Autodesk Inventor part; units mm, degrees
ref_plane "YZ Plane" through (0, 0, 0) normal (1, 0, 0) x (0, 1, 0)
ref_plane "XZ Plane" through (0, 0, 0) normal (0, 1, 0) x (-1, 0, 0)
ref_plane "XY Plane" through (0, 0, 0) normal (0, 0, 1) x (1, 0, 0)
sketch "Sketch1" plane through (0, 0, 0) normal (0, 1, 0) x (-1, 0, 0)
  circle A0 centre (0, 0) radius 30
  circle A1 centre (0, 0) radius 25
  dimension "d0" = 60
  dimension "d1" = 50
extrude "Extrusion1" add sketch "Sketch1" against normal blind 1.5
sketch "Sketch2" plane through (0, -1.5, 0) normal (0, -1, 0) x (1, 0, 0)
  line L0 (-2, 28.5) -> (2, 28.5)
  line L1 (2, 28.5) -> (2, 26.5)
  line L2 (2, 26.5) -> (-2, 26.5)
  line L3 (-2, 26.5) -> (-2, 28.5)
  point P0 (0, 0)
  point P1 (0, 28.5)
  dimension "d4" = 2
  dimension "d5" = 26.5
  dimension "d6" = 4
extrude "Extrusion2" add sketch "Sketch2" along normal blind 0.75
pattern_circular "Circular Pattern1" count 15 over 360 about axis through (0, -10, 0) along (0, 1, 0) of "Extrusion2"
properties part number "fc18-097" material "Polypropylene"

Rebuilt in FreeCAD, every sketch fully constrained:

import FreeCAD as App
import Part
import Sketcher


def add_polygon(sketch, points):
    """Adds a closed chain of lines whose ends are joined by coincident constraints."""
    first, n = sketch.GeometryCount, len(points)
    for a, b in zip(points, points[1:] + points[:1]):
        sketch.addGeometry(Part.LineSegment(App.Vector(*a, 0), App.Vector(*b, 0)), False)
    for i in range(n):
        sketch.addConstraint(Sketcher.Constraint("Coincident", first + i, 2, first + (i + 1) % n, 1))

doc = App.newDocument("Part")
body = doc.addObject("PartDesign::Body", "Body")

sketch1 = doc.addObject("Sketcher::SketchObject", "Sketch")
body.addObject(sketch1)
sketch1.AttachmentSupport = (doc.XZ_Plane, [""])
sketch1.MapMode = "FlatFace"
sketch1.addGeometry([
    Part.Circle(App.Vector(0, 0, 0), App.Vector(0, 0, 1), 30),
    Part.Circle(App.Vector(0, 0, 0), App.Vector(0, 0, 1), 25),
], False)
sketch1.addConstraint([
    Sketcher.Constraint("Coincident", 0, 3, -1, 1),
    Sketcher.Constraint("Coincident", 1, 3, -1, 1),
    Sketcher.Constraint("Diameter", 0, 60.0),
    Sketcher.Constraint("Diameter", 1, 50.0),
])
pad1 = doc.addObject("PartDesign::Pad", "Pad")
body.addObject(pad1)
pad1.Profile = sketch1
pad1.Length = 1.5

sketch2 = doc.addObject("Sketcher::SketchObject", "Sketch001")
body.addObject(sketch2)
sketch2.AttachmentSupport = (doc.XZ_Plane, [""])
sketch2.MapMode = "FlatFace"
sketch2.AttachmentOffset = App.Placement(App.Vector(0, 0, 1.5), App.Rotation())
add_polygon(sketch2, [(2, 28.5), (-2, 28.5), (-2, 26.5), (2, 26.5)])
sketch2.addConstraint([
    Sketcher.Constraint("Horizontal", 0),
    Sketcher.Constraint("Vertical", 1),
    Sketcher.Constraint("Horizontal", 2),
    Sketcher.Constraint("Vertical", 3),
    Sketcher.Constraint("DistanceX", 0, 2, 0, 1, 4.0),
    Sketcher.Constraint("DistanceY", 1, 2, 1, 1, 2.0),
    Sketcher.Constraint("DistanceX", 0, 2, -1, 1, 2.0),
    Sketcher.Constraint("DistanceY", -1, 1, 1, 2, 26.5),
])
pad2 = doc.addObject("PartDesign::Pad", "Pad001")
body.addObject(pad2)
pad2.Profile = sketch2
pad2.Length = 0.75
doc.recompute()

polarpattern = doc.addObject("PartDesign::PolarPattern", "PolarPattern")
body.addObject(polarpattern)
polarpattern.Originals = [pad2]
polarpattern.Axis = (doc.Y_Axis, [""])
polarpattern.Angle = 360
polarpattern.Occurrences = 15
body.Tip = polarpattern

doc.recompute()
